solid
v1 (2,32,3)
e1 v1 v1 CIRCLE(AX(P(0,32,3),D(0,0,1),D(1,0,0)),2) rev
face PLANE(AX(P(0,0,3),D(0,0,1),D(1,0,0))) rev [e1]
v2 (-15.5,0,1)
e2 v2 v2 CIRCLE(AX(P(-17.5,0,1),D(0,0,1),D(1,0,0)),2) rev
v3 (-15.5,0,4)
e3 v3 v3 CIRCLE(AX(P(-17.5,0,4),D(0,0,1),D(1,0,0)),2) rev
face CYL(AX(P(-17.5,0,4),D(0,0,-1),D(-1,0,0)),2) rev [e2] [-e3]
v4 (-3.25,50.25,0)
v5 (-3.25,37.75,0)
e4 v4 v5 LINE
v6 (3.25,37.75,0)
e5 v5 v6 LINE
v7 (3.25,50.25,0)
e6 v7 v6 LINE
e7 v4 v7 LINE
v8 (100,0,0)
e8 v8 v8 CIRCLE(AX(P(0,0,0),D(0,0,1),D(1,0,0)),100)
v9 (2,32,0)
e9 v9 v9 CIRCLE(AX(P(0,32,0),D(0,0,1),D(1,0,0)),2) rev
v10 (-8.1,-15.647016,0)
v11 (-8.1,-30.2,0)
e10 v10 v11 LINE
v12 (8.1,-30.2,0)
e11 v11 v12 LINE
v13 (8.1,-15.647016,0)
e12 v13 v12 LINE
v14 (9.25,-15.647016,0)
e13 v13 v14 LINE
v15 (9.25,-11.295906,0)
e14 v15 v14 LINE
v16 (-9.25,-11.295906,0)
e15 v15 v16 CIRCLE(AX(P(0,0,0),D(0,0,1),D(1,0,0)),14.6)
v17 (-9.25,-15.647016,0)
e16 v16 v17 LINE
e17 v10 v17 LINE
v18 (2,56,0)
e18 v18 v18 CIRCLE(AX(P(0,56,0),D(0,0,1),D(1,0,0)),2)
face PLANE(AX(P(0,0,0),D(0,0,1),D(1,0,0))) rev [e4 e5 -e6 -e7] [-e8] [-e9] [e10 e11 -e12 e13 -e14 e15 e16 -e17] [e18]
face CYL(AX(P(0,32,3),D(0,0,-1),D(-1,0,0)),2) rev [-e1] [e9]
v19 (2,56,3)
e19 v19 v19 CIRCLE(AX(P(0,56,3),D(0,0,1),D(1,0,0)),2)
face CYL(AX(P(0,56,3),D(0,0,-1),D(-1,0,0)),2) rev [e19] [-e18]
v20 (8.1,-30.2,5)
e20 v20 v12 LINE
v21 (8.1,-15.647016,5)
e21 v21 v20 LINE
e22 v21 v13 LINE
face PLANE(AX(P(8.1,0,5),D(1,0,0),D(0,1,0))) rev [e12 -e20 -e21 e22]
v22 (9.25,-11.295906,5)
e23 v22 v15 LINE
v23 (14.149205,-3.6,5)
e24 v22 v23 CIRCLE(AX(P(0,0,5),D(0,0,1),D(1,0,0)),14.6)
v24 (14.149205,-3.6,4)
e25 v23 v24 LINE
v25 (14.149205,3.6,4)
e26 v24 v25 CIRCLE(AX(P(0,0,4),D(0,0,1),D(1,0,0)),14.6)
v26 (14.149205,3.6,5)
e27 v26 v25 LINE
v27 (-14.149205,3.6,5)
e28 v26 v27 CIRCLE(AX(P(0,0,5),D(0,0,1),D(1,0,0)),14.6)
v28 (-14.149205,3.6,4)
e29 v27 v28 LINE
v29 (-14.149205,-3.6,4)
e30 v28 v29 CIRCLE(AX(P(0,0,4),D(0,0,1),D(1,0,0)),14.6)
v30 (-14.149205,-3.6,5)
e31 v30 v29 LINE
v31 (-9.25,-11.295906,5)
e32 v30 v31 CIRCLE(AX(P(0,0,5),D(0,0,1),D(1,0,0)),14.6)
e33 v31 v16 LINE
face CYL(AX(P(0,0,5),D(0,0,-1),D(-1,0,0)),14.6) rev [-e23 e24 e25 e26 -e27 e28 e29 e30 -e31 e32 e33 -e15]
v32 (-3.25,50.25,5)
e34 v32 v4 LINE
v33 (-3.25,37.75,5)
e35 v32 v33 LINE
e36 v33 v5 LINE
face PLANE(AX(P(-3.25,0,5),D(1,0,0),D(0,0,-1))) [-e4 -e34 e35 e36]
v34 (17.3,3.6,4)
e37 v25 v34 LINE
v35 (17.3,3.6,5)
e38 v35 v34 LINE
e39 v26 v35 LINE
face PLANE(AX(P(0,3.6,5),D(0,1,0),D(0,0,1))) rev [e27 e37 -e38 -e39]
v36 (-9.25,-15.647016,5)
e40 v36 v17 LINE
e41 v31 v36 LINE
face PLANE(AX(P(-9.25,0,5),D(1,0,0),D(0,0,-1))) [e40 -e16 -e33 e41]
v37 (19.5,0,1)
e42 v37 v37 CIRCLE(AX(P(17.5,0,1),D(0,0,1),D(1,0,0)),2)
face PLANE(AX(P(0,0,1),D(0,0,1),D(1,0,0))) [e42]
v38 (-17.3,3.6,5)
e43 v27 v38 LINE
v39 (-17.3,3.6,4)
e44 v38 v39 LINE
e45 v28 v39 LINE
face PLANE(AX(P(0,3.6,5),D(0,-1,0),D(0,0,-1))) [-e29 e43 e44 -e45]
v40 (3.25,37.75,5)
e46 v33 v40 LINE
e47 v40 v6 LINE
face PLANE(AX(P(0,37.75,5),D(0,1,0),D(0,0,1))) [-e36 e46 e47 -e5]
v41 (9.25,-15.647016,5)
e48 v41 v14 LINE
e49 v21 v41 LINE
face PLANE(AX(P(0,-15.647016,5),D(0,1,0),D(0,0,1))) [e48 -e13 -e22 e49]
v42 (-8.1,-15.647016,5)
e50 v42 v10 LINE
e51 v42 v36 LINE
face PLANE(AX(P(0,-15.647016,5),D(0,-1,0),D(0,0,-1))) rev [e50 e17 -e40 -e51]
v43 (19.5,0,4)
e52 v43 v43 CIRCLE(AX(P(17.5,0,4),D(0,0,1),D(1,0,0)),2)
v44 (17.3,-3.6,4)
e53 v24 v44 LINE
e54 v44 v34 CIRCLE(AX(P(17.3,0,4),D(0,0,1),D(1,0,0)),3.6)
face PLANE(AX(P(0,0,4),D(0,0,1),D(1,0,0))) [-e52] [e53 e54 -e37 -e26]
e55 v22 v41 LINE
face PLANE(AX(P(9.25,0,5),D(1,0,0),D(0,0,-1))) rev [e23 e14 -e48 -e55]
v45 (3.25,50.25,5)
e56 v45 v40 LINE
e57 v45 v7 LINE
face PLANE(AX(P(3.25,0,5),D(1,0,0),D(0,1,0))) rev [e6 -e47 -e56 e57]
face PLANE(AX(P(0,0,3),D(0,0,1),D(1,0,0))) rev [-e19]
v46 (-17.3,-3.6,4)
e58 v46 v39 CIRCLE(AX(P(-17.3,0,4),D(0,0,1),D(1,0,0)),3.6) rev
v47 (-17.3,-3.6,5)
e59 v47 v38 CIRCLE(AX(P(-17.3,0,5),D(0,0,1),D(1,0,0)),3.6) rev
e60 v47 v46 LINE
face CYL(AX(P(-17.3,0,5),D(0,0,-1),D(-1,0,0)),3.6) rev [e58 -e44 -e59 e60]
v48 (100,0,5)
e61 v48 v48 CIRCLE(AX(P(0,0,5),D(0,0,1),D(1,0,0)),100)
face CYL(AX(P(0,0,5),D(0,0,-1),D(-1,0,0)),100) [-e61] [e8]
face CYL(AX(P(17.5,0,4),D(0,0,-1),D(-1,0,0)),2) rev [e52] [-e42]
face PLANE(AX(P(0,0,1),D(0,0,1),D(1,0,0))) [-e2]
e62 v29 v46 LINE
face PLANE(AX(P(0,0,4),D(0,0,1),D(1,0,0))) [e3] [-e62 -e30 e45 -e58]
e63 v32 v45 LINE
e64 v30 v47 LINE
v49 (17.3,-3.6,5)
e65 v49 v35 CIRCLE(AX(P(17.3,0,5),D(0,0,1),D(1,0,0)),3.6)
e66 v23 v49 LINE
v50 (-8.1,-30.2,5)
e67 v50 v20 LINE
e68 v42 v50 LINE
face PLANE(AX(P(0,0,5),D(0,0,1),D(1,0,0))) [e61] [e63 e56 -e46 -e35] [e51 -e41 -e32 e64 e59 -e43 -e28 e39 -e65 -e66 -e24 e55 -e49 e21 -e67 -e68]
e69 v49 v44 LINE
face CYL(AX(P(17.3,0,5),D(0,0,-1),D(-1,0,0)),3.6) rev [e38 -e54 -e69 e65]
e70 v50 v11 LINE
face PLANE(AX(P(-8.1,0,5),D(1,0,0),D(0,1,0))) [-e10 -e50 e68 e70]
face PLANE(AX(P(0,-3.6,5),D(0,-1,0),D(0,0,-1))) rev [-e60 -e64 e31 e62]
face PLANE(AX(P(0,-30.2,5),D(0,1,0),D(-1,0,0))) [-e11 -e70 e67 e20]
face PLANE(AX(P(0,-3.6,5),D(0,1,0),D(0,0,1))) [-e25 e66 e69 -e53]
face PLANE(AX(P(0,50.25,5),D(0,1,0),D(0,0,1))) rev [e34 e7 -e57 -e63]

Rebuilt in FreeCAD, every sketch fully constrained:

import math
import FreeCAD as App
import Part
import Sketcher
from FreeCAD import Vector

doc = App.newDocument("Part")
body = doc.addObject("PartDesign::Body", "Body")

sketch1 = body.newObject("Sketcher::SketchObject", "Sketch")
sketch1.AttachmentSupport = (doc.getObject("XY_Plane"), [""])
sketch1.MapMode = "FlatFace"
sketch1.addGeometry(Part.Circle(Vector(0, 0, 0), Vector(0, 0, 1), 100), False)
sketch1.addGeometry(Part.ArcOfCircle(Part.Circle(Vector(-17.3, 0, 0), Vector(0, 0, 1), 3.6), math.radians(90), math.radians(270)), False)
sketch1.addGeometry(Part.LineSegment(Vector(-17.3, 3.6, 0), Vector(-14.1, 3.6, 0)), False)
sketch1.addGeometry(Part.ArcOfCircle(Part.Circle(Vector(0, 0, 0), Vector(0, 0, 1), 14.6), math.radians(14), math.radians(166)), False)
sketch1.addGeometry(Part.LineSegment(Vector(14.1, 3.6, 0), Vector(17.3, 3.6, 0)), False)
sketch1.addGeometry(Part.ArcOfCircle(Part.Circle(Vector(17.3, 0, 0), Vector(0, 0, 1), 3.6), math.radians(-90), math.radians(90)), False)
sketch1.addGeometry(Part.LineSegment(Vector(17.3, -3.6, 0), Vector(14.1, -3.6, 0)), False)
sketch1.addGeometry(Part.ArcOfCircle(Part.Circle(Vector(0, 0, 0), Vector(0, 0, 1), 14.6), math.radians(-51), math.radians(-14)), False)
sketch1.addGeometry(Part.LineSegment(Vector(9.2, -11.3, 0), Vector(9.2, -15.6, 0)), False)
sketch1.addGeometry(Part.LineSegment(Vector(9.2, -15.6, 0), Vector(8.1, -15.6, 0)), False)
sketch1.addGeometry(Part.LineSegment(Vector(8.1, -15.6, 0), Vector(8.1, -30.2, 0)), False)
sketch1.addGeometry(Part.LineSegment(Vector(8.1, -30.2, 0), Vector(-8.1, -30.2, 0)), False)
sketch1.addGeometry(Part.LineSegment(Vector(-8.1, -30.2, 0), Vector(-8.1, -15.6, 0)), False)
sketch1.addGeometry(Part.LineSegment(Vector(-8.1, -15.6, 0), Vector(-9.2, -15.6, 0)), False)
sketch1.addGeometry(Part.LineSegment(Vector(-9.2, -15.6, 0), Vector(-9.2, -11.3, 0)), False)
sketch1.addGeometry(Part.ArcOfCircle(Part.Circle(Vector(0, 0, 0), Vector(0, 0, 1), 14.6), math.radians(-166), math.radians(-129)), False)
sketch1.addGeometry(Part.LineSegment(Vector(-14.1, -3.6, 0), Vector(-17.3, -3.6, 0)), False)
sketch1.addGeometry(Part.Circle(Vector(0, 32, 0), Vector(0, 0, 1), 2), False)
sketch1.addGeometry(Part.LineSegment(Vector(3.2, 37.8, 0), Vector(-3.2, 37.8, 0)), False)
sketch1.addGeometry(Part.LineSegment(Vector(-3.2, 37.8, 0), Vector(-3.2, 50.2, 0)), False)
sketch1.addGeometry(Part.LineSegment(Vector(-3.2, 50.2, 0), Vector(3.2, 50.2, 0)), False)
sketch1.addGeometry(Part.LineSegment(Vector(3.2, 50.2, 0), Vector(3.2, 37.8, 0)), False)
sketch1.addGeometry(Part.Circle(Vector(0, 56, 0), Vector(0, 0, 1), 2), False)
sketch1.addConstraint(Sketcher.Constraint("Tangent", 1, 1, 2, 1))
sketch1.addConstraint(Sketcher.Constraint("Coincident", 2, 2, 3, 2))
sketch1.addConstraint(Sketcher.Constraint("Coincident", 3, 1, 4, 1))
sketch1.addConstraint(Sketcher.Constraint("Tangent", 4, 2, 5, 2))
sketch1.addConstraint(Sketcher.Constraint("Tangent", 5, 1, 6, 1))
sketch1.addConstraint(Sketcher.Constraint("Coincident", 6, 2, 7, 2))
sketch1.addConstraint(Sketcher.Constraint("Coincident", 7, 1, 8, 1))
sketch1.addConstraint(Sketcher.Constraint("Coincident", 8, 2, 9, 1))
sketch1.addConstraint(Sketcher.Constraint("Coincident", 9, 2, 10, 1))
sketch1.addConstraint(Sketcher.Constraint("Coincident", 10, 2, 11, 1))
sketch1.addConstraint(Sketcher.Constraint("Coincident", 11, 2, 12, 1))
sketch1.addConstraint(Sketcher.Constraint("Coincident", 12, 2, 13, 1))
sketch1.addConstraint(Sketcher.Constraint("Coincident", 13, 2, 14, 1))
sketch1.addConstraint(Sketcher.Constraint("Coincident", 14, 2, 15, 2))
sketch1.addConstraint(Sketcher.Constraint("Coincident", 15, 1, 16, 1))
sketch1.addConstraint(Sketcher.Constraint("Tangent", 16, 2, 1, 2))
sketch1.addConstraint(Sketcher.Constraint("Coincident", 18, 2, 19, 1))
sketch1.addConstraint(Sketcher.Constraint("Coincident", 19, 2, 20, 1))
sketch1.addConstraint(Sketcher.Constraint("Coincident", 20, 2, 21, 1))
sketch1.addConstraint(Sketcher.Constraint("Coincident", 21, 2, 18, 1))
sketch1.addConstraint(Sketcher.Constraint("Horizontal", 2))
sketch1.addConstraint(Sketcher.Constraint("Horizontal", 4))
sketch1.addConstraint(Sketcher.Constraint("Horizontal", 6))
sketch1.addConstraint(Sketcher.Constraint("Vertical", 8))
sketch1.addConstraint(Sketcher.Constraint("Horizontal", 9))
sketch1.addConstraint(Sketcher.Constraint("Vertical", 10))
sketch1.addConstraint(Sketcher.Constraint("Horizontal", 11))
sketch1.addConstraint(Sketcher.Constraint("Vertical", 12))
sketch1.addConstraint(Sketcher.Constraint("Horizontal", 13))
sketch1.addConstraint(Sketcher.Constraint("Vertical", 14))
sketch1.addConstraint(Sketcher.Constraint("Horizontal", 16))
sketch1.addConstraint(Sketcher.Constraint("Horizontal", 18))
sketch1.addConstraint(Sketcher.Constraint("Vertical", 19))
sketch1.addConstraint(Sketcher.Constraint("Horizontal", 20))
sketch1.addConstraint(Sketcher.Constraint("Vertical", 21))
sketch1.addConstraint(Sketcher.Constraint("Coincident", 0, 3, -1, 1))
sketch1.addConstraint(Sketcher.Constraint("Coincident", 3, 3, -1, 1))
sketch1.addConstraint(Sketcher.Constraint("Coincident", 7, 3, -1, 1))
sketch1.addConstraint(Sketcher.Constraint("Coincident", 15, 3, -1, 1))
sketch1.addConstraint(Sketcher.Constraint("Equal", 1, 5))
sketch1.addConstraint(Sketcher.Constraint("Equal", 3, 7))
sketch1.addConstraint(Sketcher.Constraint("Equal", 7, 15))
sketch1.addConstraint(Sketcher.Constraint("Equal", 17, 22))
sketch1.addConstraint(Sketcher.Constraint("Symmetric", 1, 3, 5, 3, -1, 1))
sketch1.addConstraint(Sketcher.Constraint("Symmetric", 9, 2, 12, 2, -2))
sketch1.addConstraint(Sketcher.Constraint("PointOnObject", 1, 3, -1))
sketch1.addConstraint(Sketcher.Constraint("PointOnObject", 17, 3, -2))
sketch1.addConstraint(Sketcher.Constraint("PointOnObject", 22, 3, -2))
sketch1.addConstraint(Sketcher.Constraint("Horizontal", 7, 1, 14, 2))
sketch1.addConstraint(Sketcher.Constraint("Diameter", 0, 200.0))
sketch1.addConstraint(Sketcher.Constraint("Diameter", 17, 4.0))
sketch1.addConstraint(Sketcher.Constraint("Radius", 1, 3.6))
sketch1.addConstraint(Sketcher.Constraint("Radius", 3, 14.6))
sketch1.addConstraint(Sketcher.Constraint("DistanceX", 11, 2, 11, 1, 16.2))
sketch1.addConstraint(Sketcher.Constraint("DistanceX", 18, 2, 18, 1, 6.5))
sketch1.addConstraint(Sketcher.Constraint("DistanceY", 19, 1, 19, 2, 12.5))
sketch1.addConstraint(Sketcher.Constraint("DistanceY", -1, 1, 17, 3, 32.0))
sketch1.addConstraint(Sketcher.Constraint("DistanceY", -1, 1, 22, 3, 56.0))
sketch1.addConstraint(Sketcher.Constraint("DistanceX", 9, 2, 9, 1, 1.15))
sketch1.addConstraint(Sketcher.Constraint("DistanceX", 1, 3, -1, 1, 17.3))
sketch1.addConstraint(Sketcher.Constraint("DistanceY", 10, 2, -1, 1, 30.2))
sketch1.addConstraint(Sketcher.Constraint("DistanceX", 18, 2, -1, 1, 3.25))
sketch1.addConstraint(Sketcher.Constraint("DistanceY", -1, 1, 18, 2, 37.75))
sketch1.addConstraint(Sketcher.Constraint("DistanceY", 8, 2, 8, 1, 4.35111))
pad1 = body.newObject("PartDesign::Pad", "Pad")
pad1.Profile = sketch1
pad1.Length = 5

sketch2 = body.newObject("Sketcher::SketchObject", "Sketch001")
sketch2.AttachmentSupport = (doc.getObject("XY_Plane"), [""])
sketch2.MapMode = "FlatFace"
sketch2.addGeometry(Part.ArcOfCircle(Part.Circle(Vector(0, 0, 0), Vector(0, 0, 1), 14.6), math.radians(166), math.radians(194)), False)
sketch2.addGeometry(Part.LineSegment(Vector(-14.1, 3.6, 0), Vector(-17.3, 3.6, 0)), False)
sketch2.addGeometry(Part.ArcOfCircle(Part.Circle(Vector(-17.3, 0, 0), Vector(0, 0, 1), 3.6), math.radians(90), math.radians(270)), False)
sketch2.addGeometry(Part.LineSegment(Vector(-17.3, -3.6, 0), Vector(-14.1, -3.6, 0)), False)
sketch2.addGeometry(Part.Circle(Vector(-17.5, 0, 0), Vector(0, 0, 1), 2), False)
sketch2.addGeometry(Part.LineSegment(Vector(17.3, 3.6, 0), Vector(14.1, 3.6, 0)), False)
sketch2.addGeometry(Part.ArcOfCircle(Part.Circle(Vector(0, 0, 0), Vector(0, 0, 1), 14.6), math.radians(-14), math.radians(14)), False)
sketch2.addGeometry(Part.LineSegment(Vector(14.1, -3.6, 0), Vector(17.3, -3.6, 0)), False)
sketch2.addGeometry(Part.ArcOfCircle(Part.Circle(Vector(17.3, 0, 0), Vector(0, 0, 1), 3.6), math.radians(-90), math.radians(90)), False)
sketch2.addGeometry(Part.Circle(Vector(17.5, 0, 0), Vector(0, 0, 1), 2), False)
sketch2.addConstraint(Sketcher.Constraint("Coincident", 0, 1, 1, 1))
sketch2.addConstraint(Sketcher.Constraint("Tangent", 1, 2, 2, 1))
sketch2.addConstraint(Sketcher.Constraint("Tangent", 2, 2, 3, 1))
sketch2.addConstraint(Sketcher.Constraint("Coincident", 3, 2, 0, 2))
sketch2.addConstraint(Sketcher.Constraint("Coincident", 5, 2, 6, 2))
sketch2.addConstraint(Sketcher.Constraint("Coincident", 6, 1, 7, 1))
sketch2.addConstraint(Sketcher.Constraint("Tangent", 7, 2, 8, 1))
sketch2.addConstraint(Sketcher.Constraint("Tangent", 8, 2, 5, 1))
sketch2.addConstraint(Sketcher.Constraint("Horizontal", 1))
sketch2.addConstraint(Sketcher.Constraint("Horizontal", 3))
sketch2.addConstraint(Sketcher.Constraint("Horizontal", 5))
sketch2.addConstraint(Sketcher.Constraint("Horizontal", 7))
sketch2.addConstraint(Sketcher.Constraint("Coincident", 0, 3, -1, 1))
sketch2.addConstraint(Sketcher.Constraint("Coincident", 6, 3, -1, 1))
sketch2.addConstraint(Sketcher.Constraint("Equal", 0, 6))
sketch2.addConstraint(Sketcher.Constraint("Equal", 2, 8))
sketch2.addConstraint(Sketcher.Constraint("Equal", 4, 9))
sketch2.addConstraint(Sketcher.Constraint("Symmetric", 2, 3, 8, 3, -1, 1))
sketch2.addConstraint(Sketcher.Constraint("Symmetric", 4, 3, 9, 3, -1, 1))
sketch2.addConstraint(Sketcher.Constraint("PointOnObject", 2, 3, -1))
sketch2.addConstraint(Sketcher.Constraint("PointOnObject", 4, 3, -1))
sketch2.addConstraint(Sketcher.Constraint("Diameter", 4, 4.0))
sketch2.addConstraint(Sketcher.Constraint("Radius", 0, 14.6))
sketch2.addConstraint(Sketcher.Constraint("Radius", 2, 3.6))
sketch2.addConstraint(Sketcher.Constraint("DistanceX", 4, 3, 9, 3, 35.0))
sketch2.addConstraint(Sketcher.Constraint("DistanceX", 2, 3, -1, 1, 17.3))
pad2 = body.newObject("PartDesign::Pad", "Pad001")
pad2.Profile = sketch2
pad2.Length = 4

sketch3 = body.newObject("Sketcher::SketchObject", "Sketch002")
sketch3.AttachmentSupport = (doc.getObject("XY_Plane"), [""])
sketch3.MapMode = "FlatFace"
sketch3.addGeometry(Part.Circle(Vector(-17.5, 0, 0), Vector(0, 0, 1), 2), False)
sketch3.addGeometry(Part.Circle(Vector(17.5, 0, 0), Vector(0, 0, 1), 2), False)
sketch3.addConstraint(Sketcher.Constraint("Equal", 0, 1))
sketch3.addConstraint(Sketcher.Constraint("Symmetric", 0, 3, 1, 3, -1, 1))
sketch3.addConstraint(Sketcher.Constraint("PointOnObject", 0, 3, -1))
sketch3.addConstraint(Sketcher.Constraint("Diameter", 0, 4.0))
sketch3.addConstraint(Sketcher.Constraint("DistanceX", 0, 3, 1, 3, 35.0))
pad3 = body.newObject("PartDesign::Pad", "Pad002")
pad3.Profile = sketch3
pad3.Length = 1

sketch4 = body.newObject("Sketcher::SketchObject", "Sketch003")
sketch4.AttachmentSupport = (doc.getObject("XY_Plane"), [""])
sketch4.MapMode = "FlatFace"
sketch4.addGeometry(Part.Circle(Vector(0, 56, 0), Vector(0, 0, 1), 2), False)
sketch4.addGeometry(Part.Circle(Vector(0, 32, 0), Vector(0, 0, 1), 2), False)
sketch4.addConstraint(Sketcher.Constraint("Equal", 0, 1))
sketch4.addConstraint(Sketcher.Constraint("PointOnObject", 0, 3, -2))
sketch4.addConstraint(Sketcher.Constraint("PointOnObject", 1, 3, -2))
sketch4.addConstraint(Sketcher.Constraint("Diameter", 0, 4.0))
sketch4.addConstraint(Sketcher.Constraint("DistanceY", -1, 1, 0, 3, 56.0))
sketch4.addConstraint(Sketcher.Constraint("DistanceY", -1, 1, 1, 3, 32.0))
pad4 = body.newObject("PartDesign::Pad", "Pad003")
pad4.Profile = sketch4
pad4.Length = 5

sketch5 = body.newObject("Sketcher::SketchObject", "Sketch004")
sketch5.AttachmentSupport = (doc.getObject("XY_Plane"), [""])
sketch5.MapMode = "FlatFace"
sketch5.addGeometry(Part.Circle(Vector(0, 32, 0), Vector(0, 0, 1), 2), False)
sketch5.addGeometry(Part.Circle(Vector(0, 56, 0), Vector(0, 0, 1), 2), False)
sketch5.addConstraint(Sketcher.Constraint("Equal", 0, 1))
sketch5.addConstraint(Sketcher.Constraint("PointOnObject", 0, 3, -2))
sketch5.addConstraint(Sketcher.Constraint("PointOnObject", 1, 3, -2))
sketch5.addConstraint(Sketcher.Constraint("Diameter", 0, 4.0))
sketch5.addConstraint(Sketcher.Constraint("DistanceY", -1, 1, 0, 3, 32.0))
sketch5.addConstraint(Sketcher.Constraint("DistanceY", -1, 1, 1, 3, 56.0))
pocket1 = body.newObject("PartDesign::Pocket", "Pocket")
pocket1.Profile = sketch5
pocket1.Length = 3
pocket1.Reversed = True

doc.recompute()
